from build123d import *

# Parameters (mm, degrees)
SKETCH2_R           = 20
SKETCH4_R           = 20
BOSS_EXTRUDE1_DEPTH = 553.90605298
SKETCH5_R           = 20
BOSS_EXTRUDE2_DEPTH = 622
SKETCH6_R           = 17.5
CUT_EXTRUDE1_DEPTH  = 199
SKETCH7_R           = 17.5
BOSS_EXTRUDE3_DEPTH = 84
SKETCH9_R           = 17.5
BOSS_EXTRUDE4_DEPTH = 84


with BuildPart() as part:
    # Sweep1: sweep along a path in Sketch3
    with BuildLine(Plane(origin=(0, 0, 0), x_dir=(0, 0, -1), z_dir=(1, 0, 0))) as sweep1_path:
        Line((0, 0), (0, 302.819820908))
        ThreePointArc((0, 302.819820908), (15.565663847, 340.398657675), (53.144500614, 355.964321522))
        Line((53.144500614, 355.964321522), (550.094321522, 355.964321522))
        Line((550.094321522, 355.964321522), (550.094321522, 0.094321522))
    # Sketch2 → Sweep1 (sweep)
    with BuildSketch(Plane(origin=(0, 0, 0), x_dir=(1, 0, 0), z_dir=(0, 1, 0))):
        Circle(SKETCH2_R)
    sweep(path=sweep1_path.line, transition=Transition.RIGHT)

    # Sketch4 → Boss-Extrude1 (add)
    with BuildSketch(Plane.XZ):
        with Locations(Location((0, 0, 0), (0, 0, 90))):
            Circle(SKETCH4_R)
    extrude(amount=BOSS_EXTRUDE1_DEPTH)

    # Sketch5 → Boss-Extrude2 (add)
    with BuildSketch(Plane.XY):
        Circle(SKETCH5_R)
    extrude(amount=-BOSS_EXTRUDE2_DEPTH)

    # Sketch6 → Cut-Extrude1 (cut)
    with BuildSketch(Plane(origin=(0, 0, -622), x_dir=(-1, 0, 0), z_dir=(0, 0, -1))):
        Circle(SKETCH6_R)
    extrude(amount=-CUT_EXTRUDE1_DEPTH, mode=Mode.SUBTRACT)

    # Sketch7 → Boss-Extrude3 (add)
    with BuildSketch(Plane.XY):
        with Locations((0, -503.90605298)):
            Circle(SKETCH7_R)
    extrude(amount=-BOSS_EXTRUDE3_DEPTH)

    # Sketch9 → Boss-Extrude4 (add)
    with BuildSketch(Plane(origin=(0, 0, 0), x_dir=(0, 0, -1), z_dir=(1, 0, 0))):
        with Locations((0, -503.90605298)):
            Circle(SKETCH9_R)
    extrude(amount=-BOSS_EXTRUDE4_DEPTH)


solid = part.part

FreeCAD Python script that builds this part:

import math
import FreeCAD as App
import Part
import Sketcher

V = App.Vector

doc = App.newDocument("Part")
body = doc.addObject("PartDesign::Body", "Body")

sketch1 = doc.addObject("Sketcher::SketchObject", "Sketch")
body.addObject(sketch1)
sketch1.AttachmentSupport = (doc.XZ_Plane, [""])
sketch1.MapMode = "FlatFace"
sketch1.addGeometry(Part.Circle(V(0, 0, 0), V(0, 0, 1), 20), False)
sketch1.addConstraint([
    Sketcher.Constraint("Coincident", 0, 3, -1, 1),
    Sketcher.Constraint("Diameter", 0, 40.0),
])

sketch2 = doc.addObject("Sketcher::SketchObject", "Sketch001")
body.addObject(sketch2)
sketch2.AttachmentSupport = (doc.YZ_Plane, [""])
sketch2.MapMode = "FlatFace"
sketch2.addGeometry([
    Part.LineSegment(V(0, 0, 0), V(303, 0, 0)),
    Part.ArcOfCircle(Part.Circle(V(303, -53, 0), V(0, 0, 1), 53), math.radians(0), math.radians(90)),
    Part.LineSegment(V(356, -53, 0), V(356, -550, 0)),
    Part.LineSegment(V(356, -550, 0), V(0, -550, 0)),
], False)
sketch2.addConstraint([
    Sketcher.Constraint("Tangent", 0, 2, 1, 2),
    Sketcher.Constraint("Tangent", 1, 1, 2, 1),
    Sketcher.Constraint("Coincident", 2, 2, 3, 1),
    Sketcher.Constraint("Horizontal", 0),
    Sketcher.Constraint("Vertical", 2),
    Sketcher.Constraint("Horizontal", 3),
    Sketcher.Constraint("Coincident", 0, 1, -1, 1),
    Sketcher.Constraint("DistanceX", 3, 2, 3, 1, 355.87),
    Sketcher.Constraint("Radius", 1, 53.144501),
    Sketcher.Constraint("DistanceX", 0, 1, 0, 2, 302.819821),
    Sketcher.Constraint("DistanceY", 2, 2, 2, 1, 496.949821),
])
doc.recompute()

additivepipe = doc.addObject("PartDesign::AdditivePipe", "AdditivePipe")
body.addObject(additivepipe)
additivepipe.Profile = sketch1
additivepipe.Spine = (sketch2, ["Edge1", "Edge2", "Edge3", "Edge4"])
additivepipe.Transition = "Right corner"

sketch3 = doc.addObject("Sketcher::SketchObject", "Sketch002")
body.addObject(sketch3)
sketch3.AttachmentSupport = (doc.XZ_Plane, [""])
sketch3.MapMode = "FlatFace"
sketch3.addGeometry(Part.Circle(V(0, 0, 0), V(0, 0, 1), 20), False)
sketch3.addConstraint([
    Sketcher.Constraint("Coincident", 0, 3, -1, 1),
    Sketcher.Constraint("Diameter", 0, 40.0),
])
pad1 = doc.addObject("PartDesign::Pad", "Pad")
body.addObject(pad1)
pad1.Profile = sketch3
pad1.Length = 553.906053

sketch4 = doc.addObject("Sketcher::SketchObject", "Sketch003")
body.addObject(sketch4)
sketch4.AttachmentSupport = (doc.XY_Plane, [""])
sketch4.MapMode = "FlatFace"
sketch4.addGeometry(Part.Circle(V(0, 0, 0), V(0, 0, 1), 20), False)
sketch4.addConstraint([
    Sketcher.Constraint("Coincident", 0, 3, -1, 1),
    Sketcher.Constraint("Diameter", 0, 40.0),
])
pad2 = doc.addObject("PartDesign::Pad", "Pad001")
body.addObject(pad2)
pad2.Profile = sketch4
pad2.Length = 622
pad2.Reversed = True

sketch5 = doc.addObject("Sketcher::SketchObject", "Sketch004")
body.addObject(sketch5)
sketch5.AttachmentSupport = (doc.XY_Plane, [""])
sketch5.MapMode = "FlatFace"
sketch5.AttachmentOffset = App.Placement(V(0, 0, -622), App.Rotation())
sketch5.addGeometry(Part.Circle(V(0, 0, 0), V(0, 0, 1), 18), False)
sketch5.addConstraint([
    Sketcher.Constraint("Coincident", 0, 3, -1, 1),
    Sketcher.Constraint("Diameter", 0, 35.0),
])
pocket1 = doc.addObject("PartDesign::Pocket", "Pocket")
body.addObject(pocket1)
pocket1.Profile = sketch5
pocket1.Length = 199
pocket1.Reversed = True

sketch6 = doc.addObject("Sketcher::SketchObject", "Sketch005")
body.addObject(sketch6)
sketch6.AttachmentSupport = (doc.XY_Plane, [""])
sketch6.MapMode = "FlatFace"
sketch6.addGeometry(Part.Circle(V(0, -504, 0), V(0, 0, 1), 18), False)
sketch6.addConstraint([
    Sketcher.Constraint("PointOnObject", 0, 3, -2),
    Sketcher.Constraint("Diameter", 0, 35.0),
    Sketcher.Constraint("DistanceY", 0, 3, -1, 1, 503.906053),
])
pad3 = doc.addObject("PartDesign::Pad", "Pad002")
body.addObject(pad3)
pad3.Profile = sketch6
pad3.Length = 84
pad3.Reversed = True

sketch7 = doc.addObject("Sketcher::SketchObject", "Sketch006")
body.addObject(sketch7)
sketch7.AttachmentSupport = (doc.YZ_Plane, [""])
sketch7.MapMode = "FlatFace"
sketch7.addGeometry(Part.Circle(V(-504, 0, 0), V(0, 0, 1), 18), False)
sketch7.addConstraint([
    Sketcher.Constraint("PointOnObject", 0, 3, -1),
    Sketcher.Constraint("Diameter", 0, 35.0),
    Sketcher.Constraint("DistanceX", 0, 3, -1, 1, 503.906053),
])
pad4 = doc.addObject("PartDesign::Pad", "Pad003")
body.addObject(pad4)
pad4.Profile = sketch7
pad4.Length = 84
pad4.Reversed = True

doc.recompute()
